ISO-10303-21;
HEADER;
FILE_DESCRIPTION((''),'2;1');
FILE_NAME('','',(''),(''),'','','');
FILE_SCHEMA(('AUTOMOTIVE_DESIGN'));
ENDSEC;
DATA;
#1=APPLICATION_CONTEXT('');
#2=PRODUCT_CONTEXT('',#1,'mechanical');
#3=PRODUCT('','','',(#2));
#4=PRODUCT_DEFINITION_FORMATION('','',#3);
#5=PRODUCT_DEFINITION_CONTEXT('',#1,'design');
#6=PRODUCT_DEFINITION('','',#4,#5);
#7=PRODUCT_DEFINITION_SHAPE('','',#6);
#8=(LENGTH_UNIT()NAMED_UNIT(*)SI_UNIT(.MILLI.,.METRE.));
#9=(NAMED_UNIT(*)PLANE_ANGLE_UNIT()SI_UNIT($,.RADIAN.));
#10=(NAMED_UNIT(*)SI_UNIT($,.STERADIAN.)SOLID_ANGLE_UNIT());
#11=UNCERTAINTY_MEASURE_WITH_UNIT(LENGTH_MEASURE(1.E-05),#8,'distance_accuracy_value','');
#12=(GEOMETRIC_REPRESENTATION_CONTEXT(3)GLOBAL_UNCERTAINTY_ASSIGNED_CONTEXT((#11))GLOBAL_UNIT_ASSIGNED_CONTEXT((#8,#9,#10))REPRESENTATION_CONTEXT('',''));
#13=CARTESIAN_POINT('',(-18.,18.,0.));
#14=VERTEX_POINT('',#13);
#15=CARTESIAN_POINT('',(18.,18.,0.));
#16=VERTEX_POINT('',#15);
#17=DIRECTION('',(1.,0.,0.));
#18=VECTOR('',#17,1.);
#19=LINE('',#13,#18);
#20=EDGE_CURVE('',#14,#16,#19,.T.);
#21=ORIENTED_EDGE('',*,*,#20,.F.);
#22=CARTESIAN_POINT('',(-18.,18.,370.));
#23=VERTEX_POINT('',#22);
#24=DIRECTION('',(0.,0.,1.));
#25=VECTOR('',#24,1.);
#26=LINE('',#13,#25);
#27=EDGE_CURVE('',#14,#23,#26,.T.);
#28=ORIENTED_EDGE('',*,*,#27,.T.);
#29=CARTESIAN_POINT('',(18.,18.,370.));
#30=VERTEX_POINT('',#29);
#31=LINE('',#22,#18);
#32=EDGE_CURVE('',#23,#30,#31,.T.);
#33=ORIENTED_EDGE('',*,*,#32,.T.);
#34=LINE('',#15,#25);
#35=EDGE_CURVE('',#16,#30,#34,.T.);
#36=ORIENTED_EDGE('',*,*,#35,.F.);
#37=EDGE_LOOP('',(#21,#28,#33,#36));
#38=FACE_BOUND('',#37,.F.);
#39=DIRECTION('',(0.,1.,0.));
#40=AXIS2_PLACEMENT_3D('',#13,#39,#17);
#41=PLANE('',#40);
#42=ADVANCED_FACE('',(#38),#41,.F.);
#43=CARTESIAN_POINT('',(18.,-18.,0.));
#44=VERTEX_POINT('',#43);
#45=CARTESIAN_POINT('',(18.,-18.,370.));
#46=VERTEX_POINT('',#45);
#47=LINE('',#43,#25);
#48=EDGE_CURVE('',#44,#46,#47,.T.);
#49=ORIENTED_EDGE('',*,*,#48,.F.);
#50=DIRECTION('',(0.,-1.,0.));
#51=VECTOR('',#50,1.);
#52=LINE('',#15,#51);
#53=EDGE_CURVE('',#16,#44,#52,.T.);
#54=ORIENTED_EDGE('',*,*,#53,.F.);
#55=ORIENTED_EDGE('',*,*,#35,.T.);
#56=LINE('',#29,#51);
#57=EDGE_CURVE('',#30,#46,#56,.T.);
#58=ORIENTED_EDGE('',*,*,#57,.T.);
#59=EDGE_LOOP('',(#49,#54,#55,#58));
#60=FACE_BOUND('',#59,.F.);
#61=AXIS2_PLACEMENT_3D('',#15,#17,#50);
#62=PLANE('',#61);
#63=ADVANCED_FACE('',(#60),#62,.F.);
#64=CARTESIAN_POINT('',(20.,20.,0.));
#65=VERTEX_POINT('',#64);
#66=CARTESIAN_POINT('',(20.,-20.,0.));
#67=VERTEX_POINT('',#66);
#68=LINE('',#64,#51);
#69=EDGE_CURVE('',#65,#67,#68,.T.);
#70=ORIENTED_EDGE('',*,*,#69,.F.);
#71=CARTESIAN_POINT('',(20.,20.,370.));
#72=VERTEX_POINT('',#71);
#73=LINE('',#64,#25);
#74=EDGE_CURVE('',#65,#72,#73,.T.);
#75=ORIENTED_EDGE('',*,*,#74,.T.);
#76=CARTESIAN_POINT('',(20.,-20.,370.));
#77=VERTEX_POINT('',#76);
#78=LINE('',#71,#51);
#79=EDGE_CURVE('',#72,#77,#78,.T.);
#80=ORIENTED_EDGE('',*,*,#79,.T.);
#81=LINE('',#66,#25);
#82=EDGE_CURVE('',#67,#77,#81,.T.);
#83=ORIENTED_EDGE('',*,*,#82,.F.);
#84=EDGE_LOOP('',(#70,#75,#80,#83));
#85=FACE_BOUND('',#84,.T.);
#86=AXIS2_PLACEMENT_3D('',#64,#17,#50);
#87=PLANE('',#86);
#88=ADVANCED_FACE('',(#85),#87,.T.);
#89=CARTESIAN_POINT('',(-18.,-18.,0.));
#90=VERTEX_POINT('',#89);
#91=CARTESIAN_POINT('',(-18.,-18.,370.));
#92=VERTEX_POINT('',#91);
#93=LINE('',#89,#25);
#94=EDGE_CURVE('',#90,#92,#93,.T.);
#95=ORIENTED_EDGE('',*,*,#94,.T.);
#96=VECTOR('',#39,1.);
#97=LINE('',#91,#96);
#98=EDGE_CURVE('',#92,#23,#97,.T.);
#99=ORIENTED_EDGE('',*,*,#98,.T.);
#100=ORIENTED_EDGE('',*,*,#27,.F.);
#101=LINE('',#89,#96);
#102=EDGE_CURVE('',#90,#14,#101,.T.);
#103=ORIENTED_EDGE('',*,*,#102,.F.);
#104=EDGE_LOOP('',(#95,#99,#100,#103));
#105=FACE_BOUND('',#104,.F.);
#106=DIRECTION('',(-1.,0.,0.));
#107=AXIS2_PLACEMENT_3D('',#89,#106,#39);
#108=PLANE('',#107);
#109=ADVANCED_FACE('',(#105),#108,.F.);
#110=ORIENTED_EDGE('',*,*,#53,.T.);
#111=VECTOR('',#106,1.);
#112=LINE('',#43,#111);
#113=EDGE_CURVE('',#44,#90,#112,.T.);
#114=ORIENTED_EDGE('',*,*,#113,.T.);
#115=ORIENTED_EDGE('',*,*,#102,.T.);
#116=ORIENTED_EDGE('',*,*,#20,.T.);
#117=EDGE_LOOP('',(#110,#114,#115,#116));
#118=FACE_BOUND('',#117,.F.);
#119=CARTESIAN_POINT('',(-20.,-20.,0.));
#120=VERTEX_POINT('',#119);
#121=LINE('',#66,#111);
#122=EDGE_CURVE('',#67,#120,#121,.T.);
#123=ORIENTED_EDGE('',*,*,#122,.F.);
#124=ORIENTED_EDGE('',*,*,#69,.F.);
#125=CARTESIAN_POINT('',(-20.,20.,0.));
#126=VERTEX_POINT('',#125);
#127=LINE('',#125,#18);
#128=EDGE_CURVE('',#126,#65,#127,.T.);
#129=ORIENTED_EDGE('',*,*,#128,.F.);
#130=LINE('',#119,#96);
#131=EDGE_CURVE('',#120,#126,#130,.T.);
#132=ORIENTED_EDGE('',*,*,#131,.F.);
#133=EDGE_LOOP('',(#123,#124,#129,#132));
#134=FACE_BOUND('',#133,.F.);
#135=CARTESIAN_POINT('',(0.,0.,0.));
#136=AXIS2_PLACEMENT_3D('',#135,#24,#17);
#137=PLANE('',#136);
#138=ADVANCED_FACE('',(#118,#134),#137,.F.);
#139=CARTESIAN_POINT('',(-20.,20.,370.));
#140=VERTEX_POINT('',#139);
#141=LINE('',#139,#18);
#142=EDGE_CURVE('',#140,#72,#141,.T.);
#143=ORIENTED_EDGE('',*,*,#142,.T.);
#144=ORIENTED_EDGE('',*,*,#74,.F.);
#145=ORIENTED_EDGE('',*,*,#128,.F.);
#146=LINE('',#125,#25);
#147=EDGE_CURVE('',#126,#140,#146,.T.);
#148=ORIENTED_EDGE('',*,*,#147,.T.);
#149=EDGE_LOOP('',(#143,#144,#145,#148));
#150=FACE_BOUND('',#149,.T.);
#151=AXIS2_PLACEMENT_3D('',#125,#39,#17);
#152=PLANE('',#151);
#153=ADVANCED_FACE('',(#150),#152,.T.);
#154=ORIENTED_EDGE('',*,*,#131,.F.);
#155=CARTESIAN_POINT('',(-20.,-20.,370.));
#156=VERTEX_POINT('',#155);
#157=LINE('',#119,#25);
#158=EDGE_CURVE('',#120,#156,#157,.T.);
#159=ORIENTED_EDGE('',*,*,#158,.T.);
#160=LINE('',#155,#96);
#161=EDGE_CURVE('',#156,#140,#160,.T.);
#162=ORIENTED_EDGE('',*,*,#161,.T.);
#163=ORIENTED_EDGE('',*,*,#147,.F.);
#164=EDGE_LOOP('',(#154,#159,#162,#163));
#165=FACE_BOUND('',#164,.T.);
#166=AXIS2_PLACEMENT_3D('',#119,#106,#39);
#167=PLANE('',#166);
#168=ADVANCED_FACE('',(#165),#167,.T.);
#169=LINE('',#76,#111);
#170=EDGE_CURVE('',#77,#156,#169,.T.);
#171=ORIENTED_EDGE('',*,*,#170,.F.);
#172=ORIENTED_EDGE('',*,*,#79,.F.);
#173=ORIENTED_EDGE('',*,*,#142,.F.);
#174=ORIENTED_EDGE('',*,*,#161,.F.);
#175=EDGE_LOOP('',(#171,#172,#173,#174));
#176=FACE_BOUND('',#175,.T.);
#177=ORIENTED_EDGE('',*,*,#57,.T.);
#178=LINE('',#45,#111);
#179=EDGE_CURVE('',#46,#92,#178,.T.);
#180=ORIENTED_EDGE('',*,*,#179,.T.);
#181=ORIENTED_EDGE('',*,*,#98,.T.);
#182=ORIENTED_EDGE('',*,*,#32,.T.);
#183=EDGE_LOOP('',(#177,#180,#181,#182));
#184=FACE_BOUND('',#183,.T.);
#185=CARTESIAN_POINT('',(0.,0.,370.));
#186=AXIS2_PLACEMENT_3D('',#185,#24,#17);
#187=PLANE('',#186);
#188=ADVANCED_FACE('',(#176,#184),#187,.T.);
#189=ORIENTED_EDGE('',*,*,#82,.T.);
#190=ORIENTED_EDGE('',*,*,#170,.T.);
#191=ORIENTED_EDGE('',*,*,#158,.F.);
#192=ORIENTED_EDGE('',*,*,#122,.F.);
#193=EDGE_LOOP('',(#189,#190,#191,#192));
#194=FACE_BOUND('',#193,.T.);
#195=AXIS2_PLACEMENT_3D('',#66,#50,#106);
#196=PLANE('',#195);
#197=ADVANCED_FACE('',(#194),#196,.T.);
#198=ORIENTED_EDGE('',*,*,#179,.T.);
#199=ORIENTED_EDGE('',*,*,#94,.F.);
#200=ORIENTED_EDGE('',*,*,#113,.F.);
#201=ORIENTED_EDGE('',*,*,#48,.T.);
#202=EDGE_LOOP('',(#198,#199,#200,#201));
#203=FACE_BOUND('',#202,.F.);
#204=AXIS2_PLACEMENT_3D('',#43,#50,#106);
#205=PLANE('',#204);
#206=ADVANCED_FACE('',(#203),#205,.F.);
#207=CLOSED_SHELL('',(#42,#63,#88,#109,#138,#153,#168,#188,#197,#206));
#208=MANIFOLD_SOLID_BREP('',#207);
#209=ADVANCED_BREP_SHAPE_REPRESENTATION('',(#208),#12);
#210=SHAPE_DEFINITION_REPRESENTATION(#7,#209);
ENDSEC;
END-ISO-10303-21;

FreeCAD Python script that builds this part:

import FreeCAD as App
import Part
import Sketcher


def add_polygon(sketch, points):
    """Adds a closed chain of lines whose ends are joined by coincident constraints."""
    first, n = sketch.GeometryCount, len(points)
    for a, b in zip(points, points[1:] + points[:1]):
        sketch.addGeometry(Part.LineSegment(App.Vector(*a, 0), App.Vector(*b, 0)), False)
    for i in range(n):
        sketch.addConstraint(Sketcher.Constraint("Coincident", first + i, 2, first + (i + 1) % n, 1))

doc = App.newDocument("Part")
body = doc.addObject("PartDesign::Body", "Body")

# Sketch on XY plane
sketch1 = doc.addObject("Sketcher::SketchObject", "Sketch")
body.addObject(sketch1)
sketch1.AttachmentSupport = (doc.XY_Plane, [""])
sketch1.MapMode = "FlatFace"
add_polygon(sketch1, [(20, 20), (-20, 20), (-20, -20), (20, -20)])  # lines 0-3
add_polygon(sketch1, [(-18, -18), (-18, 18), (18, 18), (18, -18)])  # lines 4-7
sketch1.addConstraint([
    Sketcher.Constraint("Horizontal", 0),
    Sketcher.Constraint("Vertical", 1),
    Sketcher.Constraint("Horizontal", 2),
    Sketcher.Constraint("Vertical", 3),
    Sketcher.Constraint("Vertical", 4),
    Sketcher.Constraint("Horizontal", 5),
    Sketcher.Constraint("Vertical", 6),
    Sketcher.Constraint("Horizontal", 7),
    Sketcher.Constraint("Symmetric", 0, 2, 2, 2, -1, 1),
    Sketcher.Constraint("Symmetric", 4, 2, 6, 2, -1, 1),
    Sketcher.Constraint("Equal", 2, 1),
    Sketcher.Constraint("Equal", 7, 4),
    Sketcher.Constraint("DistanceX", 0, 2, 0, 1, 40.0),
    Sketcher.Constraint("DistanceX", 0, 2, 4, 2, 2.0),
])
pad1 = doc.addObject("PartDesign::Pad", "Pad")
body.addObject(pad1)
pad1.Profile = sketch1
pad1.Length = 370

doc.recompute()
